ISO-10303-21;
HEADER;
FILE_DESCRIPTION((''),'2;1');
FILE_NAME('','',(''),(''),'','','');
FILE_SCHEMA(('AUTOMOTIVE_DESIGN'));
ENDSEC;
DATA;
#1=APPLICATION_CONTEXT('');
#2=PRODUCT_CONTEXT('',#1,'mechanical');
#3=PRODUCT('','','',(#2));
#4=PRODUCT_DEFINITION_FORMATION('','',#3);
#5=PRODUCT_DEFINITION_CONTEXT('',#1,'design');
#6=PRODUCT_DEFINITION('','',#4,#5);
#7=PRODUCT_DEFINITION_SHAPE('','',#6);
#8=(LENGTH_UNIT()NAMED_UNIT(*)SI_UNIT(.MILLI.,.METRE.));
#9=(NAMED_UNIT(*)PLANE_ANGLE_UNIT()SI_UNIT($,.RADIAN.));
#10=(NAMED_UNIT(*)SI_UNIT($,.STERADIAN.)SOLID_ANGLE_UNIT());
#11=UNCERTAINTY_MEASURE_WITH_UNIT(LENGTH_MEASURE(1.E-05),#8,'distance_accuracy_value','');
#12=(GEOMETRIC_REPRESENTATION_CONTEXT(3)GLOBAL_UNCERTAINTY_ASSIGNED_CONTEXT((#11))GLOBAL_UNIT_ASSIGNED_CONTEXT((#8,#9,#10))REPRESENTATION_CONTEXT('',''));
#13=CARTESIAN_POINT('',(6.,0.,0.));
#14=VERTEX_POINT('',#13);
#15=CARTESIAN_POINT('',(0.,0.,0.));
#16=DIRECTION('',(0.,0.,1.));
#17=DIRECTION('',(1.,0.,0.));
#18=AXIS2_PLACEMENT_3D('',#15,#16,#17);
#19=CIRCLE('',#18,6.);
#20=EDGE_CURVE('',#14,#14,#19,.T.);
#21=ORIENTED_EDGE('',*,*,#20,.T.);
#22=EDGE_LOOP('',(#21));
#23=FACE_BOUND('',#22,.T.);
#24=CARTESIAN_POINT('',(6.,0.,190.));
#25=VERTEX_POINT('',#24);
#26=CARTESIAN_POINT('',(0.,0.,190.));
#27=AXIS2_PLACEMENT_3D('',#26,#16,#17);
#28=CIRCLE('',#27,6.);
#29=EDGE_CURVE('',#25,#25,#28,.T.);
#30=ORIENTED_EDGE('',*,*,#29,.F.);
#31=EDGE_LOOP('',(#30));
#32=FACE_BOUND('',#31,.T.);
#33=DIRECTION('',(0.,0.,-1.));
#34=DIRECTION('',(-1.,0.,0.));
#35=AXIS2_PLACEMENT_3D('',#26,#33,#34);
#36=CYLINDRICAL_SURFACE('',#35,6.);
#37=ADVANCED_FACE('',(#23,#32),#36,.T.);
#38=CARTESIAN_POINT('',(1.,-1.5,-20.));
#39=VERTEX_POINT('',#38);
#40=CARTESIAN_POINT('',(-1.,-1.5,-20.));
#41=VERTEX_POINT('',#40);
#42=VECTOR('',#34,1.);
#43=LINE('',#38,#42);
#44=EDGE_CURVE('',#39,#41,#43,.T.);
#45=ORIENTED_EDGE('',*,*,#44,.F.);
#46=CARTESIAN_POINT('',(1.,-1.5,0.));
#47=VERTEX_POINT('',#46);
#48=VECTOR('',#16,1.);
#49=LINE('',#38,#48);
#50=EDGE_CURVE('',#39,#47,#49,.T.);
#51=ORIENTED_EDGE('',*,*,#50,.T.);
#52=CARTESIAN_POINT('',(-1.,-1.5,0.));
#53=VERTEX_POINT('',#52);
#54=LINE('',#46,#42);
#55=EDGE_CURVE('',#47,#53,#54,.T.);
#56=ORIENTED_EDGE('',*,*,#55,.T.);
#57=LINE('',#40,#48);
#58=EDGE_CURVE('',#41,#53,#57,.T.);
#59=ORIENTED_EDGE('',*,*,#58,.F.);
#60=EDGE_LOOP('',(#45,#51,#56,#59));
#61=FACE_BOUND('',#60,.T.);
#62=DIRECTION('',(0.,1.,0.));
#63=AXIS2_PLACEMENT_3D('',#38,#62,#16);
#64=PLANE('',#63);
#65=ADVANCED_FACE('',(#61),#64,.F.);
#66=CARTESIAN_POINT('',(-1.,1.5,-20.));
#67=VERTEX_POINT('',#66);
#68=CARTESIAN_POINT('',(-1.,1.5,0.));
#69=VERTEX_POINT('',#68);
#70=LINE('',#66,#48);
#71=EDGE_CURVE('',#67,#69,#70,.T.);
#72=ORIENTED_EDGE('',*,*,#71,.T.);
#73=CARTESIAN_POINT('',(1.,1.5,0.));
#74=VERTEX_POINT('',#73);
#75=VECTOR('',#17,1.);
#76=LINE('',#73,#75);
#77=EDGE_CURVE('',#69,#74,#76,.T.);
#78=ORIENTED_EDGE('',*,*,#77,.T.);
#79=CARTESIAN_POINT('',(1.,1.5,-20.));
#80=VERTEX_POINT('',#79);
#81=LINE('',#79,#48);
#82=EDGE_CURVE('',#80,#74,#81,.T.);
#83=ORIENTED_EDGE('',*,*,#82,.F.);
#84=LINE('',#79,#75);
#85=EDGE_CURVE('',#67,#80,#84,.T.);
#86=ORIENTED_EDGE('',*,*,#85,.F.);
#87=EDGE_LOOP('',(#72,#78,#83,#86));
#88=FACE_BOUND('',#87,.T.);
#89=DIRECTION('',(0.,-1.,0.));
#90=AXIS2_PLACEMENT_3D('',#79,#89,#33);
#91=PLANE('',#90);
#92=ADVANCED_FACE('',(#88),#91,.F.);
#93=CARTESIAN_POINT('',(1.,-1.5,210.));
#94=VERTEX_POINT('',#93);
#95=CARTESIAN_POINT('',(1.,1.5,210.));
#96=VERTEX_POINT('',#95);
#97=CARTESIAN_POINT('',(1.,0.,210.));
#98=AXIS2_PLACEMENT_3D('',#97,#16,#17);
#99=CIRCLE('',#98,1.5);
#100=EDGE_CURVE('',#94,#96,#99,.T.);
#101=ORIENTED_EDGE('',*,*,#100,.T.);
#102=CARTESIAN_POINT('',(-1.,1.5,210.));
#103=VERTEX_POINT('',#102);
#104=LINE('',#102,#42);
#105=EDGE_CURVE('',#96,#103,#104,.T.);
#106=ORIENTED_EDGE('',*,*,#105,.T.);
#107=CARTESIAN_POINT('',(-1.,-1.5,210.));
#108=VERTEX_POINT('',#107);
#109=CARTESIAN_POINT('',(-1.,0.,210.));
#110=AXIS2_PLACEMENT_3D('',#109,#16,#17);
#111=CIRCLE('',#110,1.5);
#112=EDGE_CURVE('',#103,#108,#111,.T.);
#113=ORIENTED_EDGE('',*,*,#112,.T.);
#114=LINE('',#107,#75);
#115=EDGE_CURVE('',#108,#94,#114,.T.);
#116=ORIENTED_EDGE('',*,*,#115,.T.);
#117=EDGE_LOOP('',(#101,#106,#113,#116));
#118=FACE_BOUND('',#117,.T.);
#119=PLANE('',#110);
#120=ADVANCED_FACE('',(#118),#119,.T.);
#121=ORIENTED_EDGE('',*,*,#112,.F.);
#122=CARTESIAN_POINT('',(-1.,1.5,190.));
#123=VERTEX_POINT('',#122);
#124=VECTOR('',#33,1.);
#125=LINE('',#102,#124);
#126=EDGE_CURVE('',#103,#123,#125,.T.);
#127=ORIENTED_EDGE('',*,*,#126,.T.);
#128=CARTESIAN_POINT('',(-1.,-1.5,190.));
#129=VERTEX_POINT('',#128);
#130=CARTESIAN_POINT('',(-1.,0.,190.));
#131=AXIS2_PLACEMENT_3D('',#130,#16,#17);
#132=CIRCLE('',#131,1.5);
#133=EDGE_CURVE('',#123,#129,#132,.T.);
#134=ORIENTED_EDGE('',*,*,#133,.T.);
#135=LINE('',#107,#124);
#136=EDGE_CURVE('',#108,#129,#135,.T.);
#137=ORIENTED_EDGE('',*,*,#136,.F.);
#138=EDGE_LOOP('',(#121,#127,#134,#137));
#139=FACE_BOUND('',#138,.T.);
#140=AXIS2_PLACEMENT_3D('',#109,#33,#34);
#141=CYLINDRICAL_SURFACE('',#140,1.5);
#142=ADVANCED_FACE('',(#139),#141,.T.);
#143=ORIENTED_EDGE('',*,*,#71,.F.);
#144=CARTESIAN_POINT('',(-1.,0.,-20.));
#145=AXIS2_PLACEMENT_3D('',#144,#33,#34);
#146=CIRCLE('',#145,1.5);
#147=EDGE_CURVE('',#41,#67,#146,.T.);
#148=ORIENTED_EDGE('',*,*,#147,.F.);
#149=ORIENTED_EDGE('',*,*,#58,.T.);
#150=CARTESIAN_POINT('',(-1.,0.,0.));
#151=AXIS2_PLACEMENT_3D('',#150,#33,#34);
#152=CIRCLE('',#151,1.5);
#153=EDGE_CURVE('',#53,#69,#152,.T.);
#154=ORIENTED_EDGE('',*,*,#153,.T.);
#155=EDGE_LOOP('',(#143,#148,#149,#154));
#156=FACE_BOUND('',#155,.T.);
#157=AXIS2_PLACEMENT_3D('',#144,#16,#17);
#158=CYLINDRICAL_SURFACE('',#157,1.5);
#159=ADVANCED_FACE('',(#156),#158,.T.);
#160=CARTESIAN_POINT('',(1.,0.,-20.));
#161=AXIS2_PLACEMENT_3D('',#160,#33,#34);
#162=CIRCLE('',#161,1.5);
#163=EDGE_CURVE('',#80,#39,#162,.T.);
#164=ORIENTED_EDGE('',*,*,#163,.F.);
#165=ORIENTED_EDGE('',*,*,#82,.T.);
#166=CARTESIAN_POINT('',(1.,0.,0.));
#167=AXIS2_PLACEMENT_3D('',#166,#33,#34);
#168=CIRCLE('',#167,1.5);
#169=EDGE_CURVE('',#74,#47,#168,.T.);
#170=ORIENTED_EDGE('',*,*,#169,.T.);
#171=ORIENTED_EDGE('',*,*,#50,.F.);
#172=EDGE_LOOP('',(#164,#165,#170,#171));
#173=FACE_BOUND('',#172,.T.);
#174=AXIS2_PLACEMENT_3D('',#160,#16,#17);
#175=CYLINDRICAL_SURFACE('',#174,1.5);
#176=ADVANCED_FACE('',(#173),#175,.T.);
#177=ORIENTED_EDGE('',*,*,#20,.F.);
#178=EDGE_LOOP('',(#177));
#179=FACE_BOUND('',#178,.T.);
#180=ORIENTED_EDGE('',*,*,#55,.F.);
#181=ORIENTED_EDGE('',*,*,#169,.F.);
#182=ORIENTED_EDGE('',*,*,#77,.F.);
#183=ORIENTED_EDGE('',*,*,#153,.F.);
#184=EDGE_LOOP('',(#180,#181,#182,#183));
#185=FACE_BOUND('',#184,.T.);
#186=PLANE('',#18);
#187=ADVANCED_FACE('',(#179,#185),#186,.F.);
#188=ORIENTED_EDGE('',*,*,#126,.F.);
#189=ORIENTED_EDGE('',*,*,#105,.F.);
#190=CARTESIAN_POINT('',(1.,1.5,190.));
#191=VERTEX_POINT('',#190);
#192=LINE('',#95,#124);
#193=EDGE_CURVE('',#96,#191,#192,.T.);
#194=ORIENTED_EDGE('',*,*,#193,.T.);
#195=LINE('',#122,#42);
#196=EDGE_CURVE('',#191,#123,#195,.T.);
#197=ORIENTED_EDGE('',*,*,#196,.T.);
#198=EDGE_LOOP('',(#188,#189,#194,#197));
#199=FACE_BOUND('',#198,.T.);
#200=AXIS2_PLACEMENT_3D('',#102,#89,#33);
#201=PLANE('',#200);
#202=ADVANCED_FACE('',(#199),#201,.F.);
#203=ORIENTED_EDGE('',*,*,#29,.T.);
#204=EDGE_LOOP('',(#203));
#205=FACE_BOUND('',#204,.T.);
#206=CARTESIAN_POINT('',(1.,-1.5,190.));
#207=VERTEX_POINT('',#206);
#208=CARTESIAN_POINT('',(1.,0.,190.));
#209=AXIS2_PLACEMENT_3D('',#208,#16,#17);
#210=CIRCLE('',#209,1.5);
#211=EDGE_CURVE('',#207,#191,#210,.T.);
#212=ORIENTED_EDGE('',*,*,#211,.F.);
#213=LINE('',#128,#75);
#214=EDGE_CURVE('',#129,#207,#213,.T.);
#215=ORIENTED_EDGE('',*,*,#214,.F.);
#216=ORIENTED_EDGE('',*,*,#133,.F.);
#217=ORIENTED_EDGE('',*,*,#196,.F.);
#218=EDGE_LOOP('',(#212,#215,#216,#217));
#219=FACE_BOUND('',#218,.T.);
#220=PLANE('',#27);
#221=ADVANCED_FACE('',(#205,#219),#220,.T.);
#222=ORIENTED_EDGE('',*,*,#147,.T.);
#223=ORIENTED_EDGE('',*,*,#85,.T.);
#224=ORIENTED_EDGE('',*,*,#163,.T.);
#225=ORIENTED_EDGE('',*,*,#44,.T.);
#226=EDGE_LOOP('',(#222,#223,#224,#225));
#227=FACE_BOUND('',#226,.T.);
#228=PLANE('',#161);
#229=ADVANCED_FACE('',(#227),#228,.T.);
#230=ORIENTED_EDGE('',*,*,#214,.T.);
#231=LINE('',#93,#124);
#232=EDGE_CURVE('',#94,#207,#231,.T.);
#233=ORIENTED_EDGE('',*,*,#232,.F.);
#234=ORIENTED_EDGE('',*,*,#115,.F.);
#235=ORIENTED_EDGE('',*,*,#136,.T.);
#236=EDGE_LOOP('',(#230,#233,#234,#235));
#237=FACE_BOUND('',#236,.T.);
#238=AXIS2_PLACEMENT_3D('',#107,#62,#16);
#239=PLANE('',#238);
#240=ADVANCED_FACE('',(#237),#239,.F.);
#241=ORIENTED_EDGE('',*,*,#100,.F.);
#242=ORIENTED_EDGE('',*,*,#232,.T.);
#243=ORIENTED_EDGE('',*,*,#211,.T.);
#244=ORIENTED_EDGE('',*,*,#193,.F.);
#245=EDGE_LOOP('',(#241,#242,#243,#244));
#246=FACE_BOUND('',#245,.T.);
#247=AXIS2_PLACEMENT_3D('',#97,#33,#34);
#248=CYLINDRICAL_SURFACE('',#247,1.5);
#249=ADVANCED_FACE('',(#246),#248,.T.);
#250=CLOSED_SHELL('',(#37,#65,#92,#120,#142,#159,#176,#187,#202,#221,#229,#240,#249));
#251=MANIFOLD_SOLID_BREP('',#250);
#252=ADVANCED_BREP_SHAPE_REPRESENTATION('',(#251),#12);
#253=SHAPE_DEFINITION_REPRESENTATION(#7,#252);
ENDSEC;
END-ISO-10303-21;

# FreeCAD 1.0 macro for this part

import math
import FreeCAD as App
import Part
import Sketcher
Q = App.Units.Quantity

doc = App.newDocument("Part")
params = doc.addObject("Spreadsheet::Sheet", "Params")
for row, (alias, value) in enumerate([
    ("sketch1_diameter", "12 mm"),
    ("pad1_length", "190 mm"),
    ("sketch2_radius", "1.5 mm"),
    ("sketch2_width", "2 mm"),
    ("pad2_length", "20 mm"),
    ("sketch3_radius", "1.5 mm"),
    ("sketch3_width", "2 mm"),
    ("pad3_length", "20 mm"),
], start=1):
    params.set(f"A{row}", alias)
    params.set(f"B{row}", "=" + value)
    params.setAlias(f"B{row}", alias)

body = doc.addObject("PartDesign::Body", "Body")

# Sketch on XY plane
sketch1 = body.newObject("Sketcher::SketchObject", "Sketch")
sketch1.AttachmentSupport = (doc.getObject("XY_Plane"), [""])
sketch1.MapMode = "FlatFace"
sketch1.addGeometry(Part.Circle(App.Vector(0, 0, 0), App.Vector(0, 0, 1), 6), False)
sketch1.addConstraint(Sketcher.Constraint("Coincident", 0, 3, -1, 1))
sketch1.addConstraint(Sketcher.Constraint("Diameter", 0, Q("12 mm")))
sketch1.setExpression("Constraints[1]", "Params.sketch1_diameter")
pad1 = body.newObject("PartDesign::Pad", "Pad")
pad1.Profile = sketch1
pad1.setExpression("Length", "Params.pad1_length")

# Sketch on XY plane
sketch2 = body.newObject("Sketcher::SketchObject", "Sketch001")
sketch2.AttachmentSupport = (doc.getObject("XY_Plane"), [""])
sketch2.MapMode = "FlatFace"
sketch2.AttachmentOffset = App.Placement(App.Vector(0, 0, 190), App.Rotation())
sketch2.addGeometry(Part.LineSegment(App.Vector(1, 1.5, 0), App.Vector(-1, 1.5, 0)), False)
sketch2.addGeometry(Part.ArcOfCircle(Part.Circle(App.Vector(-1, 0, 0), App.Vector(0, 0, 1), 1.5), math.radians(90), math.radians(270)), False)
sketch2.addGeometry(Part.LineSegment(App.Vector(-1, -1.5, 0), App.Vector(1, -1.5, 0)), False)
sketch2.addGeometry(Part.ArcOfCircle(Part.Circle(App.Vector(1, 0, 0), App.Vector(0, 0, 1), 1.5), math.radians(-90), math.radians(90)), False)
sketch2.addConstraint(Sketcher.Constraint("Tangent", 0, 2, 1, 1))
sketch2.addConstraint(Sketcher.Constraint("Tangent", 1, 2, 2, 1))
sketch2.addConstraint(Sketcher.Constraint("Tangent", 2, 2, 3, 1))
sketch2.addConstraint(Sketcher.Constraint("Tangent", 3, 2, 0, 1))
sketch2.addConstraint(Sketcher.Constraint("Horizontal", 0))
sketch2.addConstraint(Sketcher.Constraint("Horizontal", 2))
sketch2.addConstraint(Sketcher.Constraint("Symmetric", 1, 3, 3, 3, -1, 1))
sketch2.addConstraint(Sketcher.Constraint("Radius", 1, Q("1.5 mm")))
sketch2.addConstraint(Sketcher.Constraint("DistanceX", 0, 2, 0, 1, Q("2 mm")))
sketch2.setExpression("Constraints[7]", "Params.sketch2_radius")
sketch2.setExpression("Constraints[8]", "Params.sketch2_width")
pad2 = body.newObject("PartDesign::Pad", "Pad001")
pad2.Profile = sketch2
pad2.setExpression("Length", "Params.pad2_length")

# Sketch on XY plane
sketch3 = body.newObject("Sketcher::SketchObject", "Sketch002")
sketch3.AttachmentSupport = (doc.getObject("XY_Plane"), [""])
sketch3.MapMode = "FlatFace"
sketch3.AttachmentOffset = App.Placement(App.Vector(0, 0, -20), App.Rotation())
sketch3.addGeometry(Part.LineSegment(App.Vector(-1, 1.5, 0), App.Vector(1, 1.5, 0)), False)
sketch3.addGeometry(Part.ArcOfCircle(Part.Circle(App.Vector(1, 0, 0), App.Vector(0, 0, 1), 1.5), math.radians(-90), math.radians(90)), False)
sketch3.addGeometry(Part.LineSegment(App.Vector(1, -1.5, 0), App.Vector(-1, -1.5, 0)), False)
sketch3.addGeometry(Part.ArcOfCircle(Part.Circle(App.Vector(-1, 0, 0), App.Vector(0, 0, 1), 1.5), math.radians(90), math.radians(270)), False)
sketch3.addConstraint(Sketcher.Constraint("Tangent", 0, 2, 1, 2))
sketch3.addConstraint(Sketcher.Constraint("Tangent", 1, 1, 2, 1))
sketch3.addConstraint(Sketcher.Constraint("Tangent", 2, 2, 3, 2))
sketch3.addConstraint(Sketcher.Constraint("Tangent", 3, 1, 0, 1))
sketch3.addConstraint(Sketcher.Constraint("Horizontal", 0))
sketch3.addConstraint(Sketcher.Constraint("Horizontal", 2))
sketch3.addConstraint(Sketcher.Constraint("Symmetric", 1, 3, 3, 3, -1, 1))
sketch3.addConstraint(Sketcher.Constraint("Radius", 1, Q("1.5 mm")))
sketch3.addConstraint(Sketcher.Constraint("DistanceX", 0, 1, 0, 2, Q("2 mm")))
sketch3.setExpression("Constraints[7]", "Params.sketch3_radius")
sketch3.setExpression("Constraints[8]", "Params.sketch3_width")
pad3 = body.newObject("PartDesign::Pad", "Pad002")
pad3.Profile = sketch3
pad3.setExpression("Length", "Params.pad3_length")

doc.recompute()
